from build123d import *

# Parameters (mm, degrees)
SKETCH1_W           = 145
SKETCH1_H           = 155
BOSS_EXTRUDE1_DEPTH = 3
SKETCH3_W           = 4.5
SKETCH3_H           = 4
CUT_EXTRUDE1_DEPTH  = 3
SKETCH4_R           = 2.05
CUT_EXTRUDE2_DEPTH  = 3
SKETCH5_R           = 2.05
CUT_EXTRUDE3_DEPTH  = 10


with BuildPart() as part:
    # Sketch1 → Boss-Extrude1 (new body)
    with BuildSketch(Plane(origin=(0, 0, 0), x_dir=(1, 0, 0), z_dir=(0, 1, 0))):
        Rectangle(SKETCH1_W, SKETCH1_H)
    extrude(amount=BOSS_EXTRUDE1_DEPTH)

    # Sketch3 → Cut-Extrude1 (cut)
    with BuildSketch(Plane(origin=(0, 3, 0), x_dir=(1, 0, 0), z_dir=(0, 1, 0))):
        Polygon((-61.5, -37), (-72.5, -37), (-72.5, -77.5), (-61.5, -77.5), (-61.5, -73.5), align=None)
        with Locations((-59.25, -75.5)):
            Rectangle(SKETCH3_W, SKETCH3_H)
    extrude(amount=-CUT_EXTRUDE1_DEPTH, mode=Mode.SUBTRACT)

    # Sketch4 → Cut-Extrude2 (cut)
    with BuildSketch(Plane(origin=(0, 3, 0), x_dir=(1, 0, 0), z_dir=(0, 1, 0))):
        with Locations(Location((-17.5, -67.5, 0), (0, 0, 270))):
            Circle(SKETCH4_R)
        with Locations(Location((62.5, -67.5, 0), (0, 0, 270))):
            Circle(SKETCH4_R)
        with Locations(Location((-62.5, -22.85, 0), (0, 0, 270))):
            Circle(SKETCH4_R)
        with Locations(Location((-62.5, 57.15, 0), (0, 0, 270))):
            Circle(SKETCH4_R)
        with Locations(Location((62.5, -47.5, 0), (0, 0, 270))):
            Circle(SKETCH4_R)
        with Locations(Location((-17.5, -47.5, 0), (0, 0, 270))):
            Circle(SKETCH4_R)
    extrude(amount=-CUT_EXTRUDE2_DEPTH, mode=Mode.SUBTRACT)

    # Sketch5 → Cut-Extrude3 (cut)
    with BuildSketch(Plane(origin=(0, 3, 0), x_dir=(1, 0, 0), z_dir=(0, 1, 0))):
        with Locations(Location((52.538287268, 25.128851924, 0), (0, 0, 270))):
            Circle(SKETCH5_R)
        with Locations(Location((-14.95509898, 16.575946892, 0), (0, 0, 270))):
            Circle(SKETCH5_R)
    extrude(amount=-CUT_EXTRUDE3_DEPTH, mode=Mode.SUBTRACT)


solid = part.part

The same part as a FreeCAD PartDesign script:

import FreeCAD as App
import Part
import Sketcher


def add_polygon(sketch, points):
    """Adds a closed chain of lines whose ends are joined by coincident constraints."""
    first, n = sketch.GeometryCount, len(points)
    for a, b in zip(points, points[1:] + points[:1]):
        sketch.addGeometry(Part.LineSegment(App.Vector(*a, 0), App.Vector(*b, 0)), False)
    for i in range(n):
        sketch.addConstraint(Sketcher.Constraint("Coincident", first + i, 2, first + (i + 1) % n, 1))

doc = App.newDocument("Part")
body = doc.addObject("PartDesign::Body", "Body")

sketch1 = doc.addObject("Sketcher::SketchObject", "Sketch")
body.addObject(sketch1)
sketch1.AttachmentSupport = (doc.XZ_Plane, [""])
sketch1.MapMode = "FlatFace"
add_polygon(sketch1, [(-72, -78), (-72, 78), (72, 78), (72, -78)])
sketch1.addConstraint(Sketcher.Constraint("Vertical", 0))
sketch1.addConstraint(Sketcher.Constraint("Horizontal", 1))
sketch1.addConstraint(Sketcher.Constraint("Vertical", 2))
sketch1.addConstraint(Sketcher.Constraint("Horizontal", 3))
sketch1.addConstraint(Sketcher.Constraint("Symmetric", 0, 2, 2, 2, -1, 1))
sketch1.addConstraint(Sketcher.Constraint("DistanceX", 1, 1, 1, 2, 145.0))
sketch1.addConstraint(Sketcher.Constraint("DistanceY", 0, 1, 0, 2, 155.0))
pad1 = doc.addObject("PartDesign::Pad", "Pad")
body.addObject(pad1)
pad1.Profile = sketch1
pad1.Length = 3
pad1.Reversed = True

sketch2 = doc.addObject("Sketcher::SketchObject", "Sketch001")
body.addObject(sketch2)
sketch2.AttachmentSupport = (doc.XZ_Plane, [""])
sketch2.MapMode = "FlatFace"
sketch2.AttachmentOffset = App.Placement(App.Vector(0, 0, -3), App.Rotation())
add_polygon(sketch2, [(-61.5, 37), (-72.5, 37), (-72.5, 77.5), (-57, 77.5), (-57, 73.5), (-61.5, 73.5)])
sketch2.addConstraint(Sketcher.Constraint("Horizontal", 0))
sketch2.addConstraint(Sketcher.Constraint("Vertical", 1))
sketch2.addConstraint(Sketcher.Constraint("Horizontal", 2))
sketch2.addConstraint(Sketcher.Constraint("Vertical", 3))
sketch2.addConstraint(Sketcher.Constraint("Horizontal", 4))
sketch2.addConstraint(Sketcher.Constraint("Vertical", 5))
sketch2.addConstraint(Sketcher.Constraint("DistanceX", 0, 2, 0, 1, 11.0))
sketch2.addConstraint(Sketcher.Constraint("DistanceY", 3, 2, 3, 1, 4.0))
sketch2.addConstraint(Sketcher.Constraint("DistanceX", 2, 1, 2, 2, 15.5))
sketch2.addConstraint(Sketcher.Constraint("DistanceY", 1, 1, 1, 2, 40.5))
sketch2.addConstraint(Sketcher.Constraint("DistanceY", -1, 1, 0, 2, 37.0))
sketch2.addConstraint(Sketcher.Constraint("DistanceX", 2, 2, -1, 1, 57.0))
pocket1 = doc.addObject("PartDesign::Pocket", "Pocket")
body.addObject(pocket1)
pocket1.Profile = sketch2
pocket1.Length = 3
pocket1.Reversed = True

sketch3 = doc.addObject("Sketcher::SketchObject", "Sketch002")
body.addObject(sketch3)
sketch3.AttachmentSupport = (doc.XZ_Plane, [""])
sketch3.MapMode = "FlatFace"
sketch3.AttachmentOffset = App.Placement(App.Vector(0, 0, -3), App.Rotation())
sketch3.addGeometry(Part.Circle(App.Vector(-17.5, 67.5, 0), App.Vector(0, 0, 1), 2), False)
sketch3.addGeometry(Part.Circle(App.Vector(62.5, 67.5, 0), App.Vector(0, 0, 1), 2), False)
sketch3.addGeometry(Part.Circle(App.Vector(-62.5, 22.9, 0), App.Vector(0, 0, 1), 2), False)
sketch3.addGeometry(Part.Circle(App.Vector(-62.5, -57.1, 0), App.Vector(0, 0, 1), 2), False)
sketch3.addGeometry(Part.Circle(App.Vector(62.5, 47.5, 0), App.Vector(0, 0, 1), 2), False)
sketch3.addGeometry(Part.Circle(App.Vector(-17.5, 47.5, 0), App.Vector(0, 0, 1), 2), False)
sketch3.addConstraint(Sketcher.Constraint("Equal", 0, 1))
sketch3.addConstraint(Sketcher.Constraint("Equal", 1, 2))
sketch3.addConstraint(Sketcher.Constraint("Equal", 2, 3))
sketch3.addConstraint(Sketcher.Constraint("Equal", 3, 4))
sketch3.addConstraint(Sketcher.Constraint("Equal", 4, 5))
sketch3.addConstraint(Sketcher.Constraint("Horizontal", 0, 3, 1, 3))
sketch3.addConstraint(Sketcher.Constraint("Horizontal", 4, 3, 5, 3))
sketch3.addConstraint(Sketcher.Constraint("Vertical", 2, 3, 3, 3))
sketch3.addConstraint(Sketcher.Constraint("Vertical", 1, 3, 4, 3))
sketch3.addConstraint(Sketcher.Constraint("Vertical", 0, 3, 5, 3))
sketch3.addConstraint(Sketcher.Constraint("Diameter", 0, 4.1))
sketch3.addConstraint(Sketcher.Constraint("DistanceX", 0, 3, 1, 3, 80.0))
sketch3.addConstraint(Sketcher.Constraint("DistanceX", 2, 3, 0, 3, 45.0))
sketch3.addConstraint(Sketcher.Constraint("DistanceY", 3, 3, 2, 3, 80.0))
sketch3.addConstraint(Sketcher.Constraint("DistanceY", 4, 3, 1, 3, 20.0))
sketch3.addConstraint(Sketcher.Constraint("DistanceX", 0, 3, -1, 1, 17.5))
sketch3.addConstraint(Sketcher.Constraint("DistanceY", -1, 1, 0, 3, 67.5))
sketch3.addConstraint(Sketcher.Constraint("DistanceY", -1, 1, 2, 3, 22.85))
pocket2 = doc.addObject("PartDesign::Pocket", "Pocket001")
body.addObject(pocket2)
pocket2.Profile = sketch3
pocket2.Length = 3
pocket2.Reversed = True

sketch4 = doc.addObject("Sketcher::SketchObject", "Sketch003")
body.addObject(sketch4)
sketch4.AttachmentSupport = (doc.XZ_Plane, [""])
sketch4.MapMode = "FlatFace"
sketch4.AttachmentOffset = App.Placement(App.Vector(0, 0, -3), App.Rotation())
sketch4.addGeometry(Part.Circle(App.Vector(52.5, -25.1, 0), App.Vector(0, 0, 1), 2), False)
sketch4.addGeometry(Part.Circle(App.Vector(-15, -16.6, 0), App.Vector(0, 0, 1), 2), False)
sketch4.addConstraint(Sketcher.Constraint("Equal", 0, 1))
sketch4.addConstraint(Sketcher.Constraint("Diameter", 0, 4.1))
sketch4.addConstraint(Sketcher.Constraint("DistanceX", 1, 3, -1, 1, 14.955099))
sketch4.addConstraint(Sketcher.Constraint("DistanceY", 0, 3, -1, 1, 25.128852))
sketch4.addConstraint(Sketcher.Constraint("DistanceX", -1, 1, 0, 3, 52.538287))
sketch4.addConstraint(Sketcher.Constraint("DistanceY", 1, 3, -1, 1, 16.575947))
pocket3 = doc.addObject("PartDesign::Pocket", "Pocket002")
body.addObject(pocket3)
pocket3.Profile = sketch4
pocket3.Length = 10
pocket3.Reversed = True

doc.recompute()
